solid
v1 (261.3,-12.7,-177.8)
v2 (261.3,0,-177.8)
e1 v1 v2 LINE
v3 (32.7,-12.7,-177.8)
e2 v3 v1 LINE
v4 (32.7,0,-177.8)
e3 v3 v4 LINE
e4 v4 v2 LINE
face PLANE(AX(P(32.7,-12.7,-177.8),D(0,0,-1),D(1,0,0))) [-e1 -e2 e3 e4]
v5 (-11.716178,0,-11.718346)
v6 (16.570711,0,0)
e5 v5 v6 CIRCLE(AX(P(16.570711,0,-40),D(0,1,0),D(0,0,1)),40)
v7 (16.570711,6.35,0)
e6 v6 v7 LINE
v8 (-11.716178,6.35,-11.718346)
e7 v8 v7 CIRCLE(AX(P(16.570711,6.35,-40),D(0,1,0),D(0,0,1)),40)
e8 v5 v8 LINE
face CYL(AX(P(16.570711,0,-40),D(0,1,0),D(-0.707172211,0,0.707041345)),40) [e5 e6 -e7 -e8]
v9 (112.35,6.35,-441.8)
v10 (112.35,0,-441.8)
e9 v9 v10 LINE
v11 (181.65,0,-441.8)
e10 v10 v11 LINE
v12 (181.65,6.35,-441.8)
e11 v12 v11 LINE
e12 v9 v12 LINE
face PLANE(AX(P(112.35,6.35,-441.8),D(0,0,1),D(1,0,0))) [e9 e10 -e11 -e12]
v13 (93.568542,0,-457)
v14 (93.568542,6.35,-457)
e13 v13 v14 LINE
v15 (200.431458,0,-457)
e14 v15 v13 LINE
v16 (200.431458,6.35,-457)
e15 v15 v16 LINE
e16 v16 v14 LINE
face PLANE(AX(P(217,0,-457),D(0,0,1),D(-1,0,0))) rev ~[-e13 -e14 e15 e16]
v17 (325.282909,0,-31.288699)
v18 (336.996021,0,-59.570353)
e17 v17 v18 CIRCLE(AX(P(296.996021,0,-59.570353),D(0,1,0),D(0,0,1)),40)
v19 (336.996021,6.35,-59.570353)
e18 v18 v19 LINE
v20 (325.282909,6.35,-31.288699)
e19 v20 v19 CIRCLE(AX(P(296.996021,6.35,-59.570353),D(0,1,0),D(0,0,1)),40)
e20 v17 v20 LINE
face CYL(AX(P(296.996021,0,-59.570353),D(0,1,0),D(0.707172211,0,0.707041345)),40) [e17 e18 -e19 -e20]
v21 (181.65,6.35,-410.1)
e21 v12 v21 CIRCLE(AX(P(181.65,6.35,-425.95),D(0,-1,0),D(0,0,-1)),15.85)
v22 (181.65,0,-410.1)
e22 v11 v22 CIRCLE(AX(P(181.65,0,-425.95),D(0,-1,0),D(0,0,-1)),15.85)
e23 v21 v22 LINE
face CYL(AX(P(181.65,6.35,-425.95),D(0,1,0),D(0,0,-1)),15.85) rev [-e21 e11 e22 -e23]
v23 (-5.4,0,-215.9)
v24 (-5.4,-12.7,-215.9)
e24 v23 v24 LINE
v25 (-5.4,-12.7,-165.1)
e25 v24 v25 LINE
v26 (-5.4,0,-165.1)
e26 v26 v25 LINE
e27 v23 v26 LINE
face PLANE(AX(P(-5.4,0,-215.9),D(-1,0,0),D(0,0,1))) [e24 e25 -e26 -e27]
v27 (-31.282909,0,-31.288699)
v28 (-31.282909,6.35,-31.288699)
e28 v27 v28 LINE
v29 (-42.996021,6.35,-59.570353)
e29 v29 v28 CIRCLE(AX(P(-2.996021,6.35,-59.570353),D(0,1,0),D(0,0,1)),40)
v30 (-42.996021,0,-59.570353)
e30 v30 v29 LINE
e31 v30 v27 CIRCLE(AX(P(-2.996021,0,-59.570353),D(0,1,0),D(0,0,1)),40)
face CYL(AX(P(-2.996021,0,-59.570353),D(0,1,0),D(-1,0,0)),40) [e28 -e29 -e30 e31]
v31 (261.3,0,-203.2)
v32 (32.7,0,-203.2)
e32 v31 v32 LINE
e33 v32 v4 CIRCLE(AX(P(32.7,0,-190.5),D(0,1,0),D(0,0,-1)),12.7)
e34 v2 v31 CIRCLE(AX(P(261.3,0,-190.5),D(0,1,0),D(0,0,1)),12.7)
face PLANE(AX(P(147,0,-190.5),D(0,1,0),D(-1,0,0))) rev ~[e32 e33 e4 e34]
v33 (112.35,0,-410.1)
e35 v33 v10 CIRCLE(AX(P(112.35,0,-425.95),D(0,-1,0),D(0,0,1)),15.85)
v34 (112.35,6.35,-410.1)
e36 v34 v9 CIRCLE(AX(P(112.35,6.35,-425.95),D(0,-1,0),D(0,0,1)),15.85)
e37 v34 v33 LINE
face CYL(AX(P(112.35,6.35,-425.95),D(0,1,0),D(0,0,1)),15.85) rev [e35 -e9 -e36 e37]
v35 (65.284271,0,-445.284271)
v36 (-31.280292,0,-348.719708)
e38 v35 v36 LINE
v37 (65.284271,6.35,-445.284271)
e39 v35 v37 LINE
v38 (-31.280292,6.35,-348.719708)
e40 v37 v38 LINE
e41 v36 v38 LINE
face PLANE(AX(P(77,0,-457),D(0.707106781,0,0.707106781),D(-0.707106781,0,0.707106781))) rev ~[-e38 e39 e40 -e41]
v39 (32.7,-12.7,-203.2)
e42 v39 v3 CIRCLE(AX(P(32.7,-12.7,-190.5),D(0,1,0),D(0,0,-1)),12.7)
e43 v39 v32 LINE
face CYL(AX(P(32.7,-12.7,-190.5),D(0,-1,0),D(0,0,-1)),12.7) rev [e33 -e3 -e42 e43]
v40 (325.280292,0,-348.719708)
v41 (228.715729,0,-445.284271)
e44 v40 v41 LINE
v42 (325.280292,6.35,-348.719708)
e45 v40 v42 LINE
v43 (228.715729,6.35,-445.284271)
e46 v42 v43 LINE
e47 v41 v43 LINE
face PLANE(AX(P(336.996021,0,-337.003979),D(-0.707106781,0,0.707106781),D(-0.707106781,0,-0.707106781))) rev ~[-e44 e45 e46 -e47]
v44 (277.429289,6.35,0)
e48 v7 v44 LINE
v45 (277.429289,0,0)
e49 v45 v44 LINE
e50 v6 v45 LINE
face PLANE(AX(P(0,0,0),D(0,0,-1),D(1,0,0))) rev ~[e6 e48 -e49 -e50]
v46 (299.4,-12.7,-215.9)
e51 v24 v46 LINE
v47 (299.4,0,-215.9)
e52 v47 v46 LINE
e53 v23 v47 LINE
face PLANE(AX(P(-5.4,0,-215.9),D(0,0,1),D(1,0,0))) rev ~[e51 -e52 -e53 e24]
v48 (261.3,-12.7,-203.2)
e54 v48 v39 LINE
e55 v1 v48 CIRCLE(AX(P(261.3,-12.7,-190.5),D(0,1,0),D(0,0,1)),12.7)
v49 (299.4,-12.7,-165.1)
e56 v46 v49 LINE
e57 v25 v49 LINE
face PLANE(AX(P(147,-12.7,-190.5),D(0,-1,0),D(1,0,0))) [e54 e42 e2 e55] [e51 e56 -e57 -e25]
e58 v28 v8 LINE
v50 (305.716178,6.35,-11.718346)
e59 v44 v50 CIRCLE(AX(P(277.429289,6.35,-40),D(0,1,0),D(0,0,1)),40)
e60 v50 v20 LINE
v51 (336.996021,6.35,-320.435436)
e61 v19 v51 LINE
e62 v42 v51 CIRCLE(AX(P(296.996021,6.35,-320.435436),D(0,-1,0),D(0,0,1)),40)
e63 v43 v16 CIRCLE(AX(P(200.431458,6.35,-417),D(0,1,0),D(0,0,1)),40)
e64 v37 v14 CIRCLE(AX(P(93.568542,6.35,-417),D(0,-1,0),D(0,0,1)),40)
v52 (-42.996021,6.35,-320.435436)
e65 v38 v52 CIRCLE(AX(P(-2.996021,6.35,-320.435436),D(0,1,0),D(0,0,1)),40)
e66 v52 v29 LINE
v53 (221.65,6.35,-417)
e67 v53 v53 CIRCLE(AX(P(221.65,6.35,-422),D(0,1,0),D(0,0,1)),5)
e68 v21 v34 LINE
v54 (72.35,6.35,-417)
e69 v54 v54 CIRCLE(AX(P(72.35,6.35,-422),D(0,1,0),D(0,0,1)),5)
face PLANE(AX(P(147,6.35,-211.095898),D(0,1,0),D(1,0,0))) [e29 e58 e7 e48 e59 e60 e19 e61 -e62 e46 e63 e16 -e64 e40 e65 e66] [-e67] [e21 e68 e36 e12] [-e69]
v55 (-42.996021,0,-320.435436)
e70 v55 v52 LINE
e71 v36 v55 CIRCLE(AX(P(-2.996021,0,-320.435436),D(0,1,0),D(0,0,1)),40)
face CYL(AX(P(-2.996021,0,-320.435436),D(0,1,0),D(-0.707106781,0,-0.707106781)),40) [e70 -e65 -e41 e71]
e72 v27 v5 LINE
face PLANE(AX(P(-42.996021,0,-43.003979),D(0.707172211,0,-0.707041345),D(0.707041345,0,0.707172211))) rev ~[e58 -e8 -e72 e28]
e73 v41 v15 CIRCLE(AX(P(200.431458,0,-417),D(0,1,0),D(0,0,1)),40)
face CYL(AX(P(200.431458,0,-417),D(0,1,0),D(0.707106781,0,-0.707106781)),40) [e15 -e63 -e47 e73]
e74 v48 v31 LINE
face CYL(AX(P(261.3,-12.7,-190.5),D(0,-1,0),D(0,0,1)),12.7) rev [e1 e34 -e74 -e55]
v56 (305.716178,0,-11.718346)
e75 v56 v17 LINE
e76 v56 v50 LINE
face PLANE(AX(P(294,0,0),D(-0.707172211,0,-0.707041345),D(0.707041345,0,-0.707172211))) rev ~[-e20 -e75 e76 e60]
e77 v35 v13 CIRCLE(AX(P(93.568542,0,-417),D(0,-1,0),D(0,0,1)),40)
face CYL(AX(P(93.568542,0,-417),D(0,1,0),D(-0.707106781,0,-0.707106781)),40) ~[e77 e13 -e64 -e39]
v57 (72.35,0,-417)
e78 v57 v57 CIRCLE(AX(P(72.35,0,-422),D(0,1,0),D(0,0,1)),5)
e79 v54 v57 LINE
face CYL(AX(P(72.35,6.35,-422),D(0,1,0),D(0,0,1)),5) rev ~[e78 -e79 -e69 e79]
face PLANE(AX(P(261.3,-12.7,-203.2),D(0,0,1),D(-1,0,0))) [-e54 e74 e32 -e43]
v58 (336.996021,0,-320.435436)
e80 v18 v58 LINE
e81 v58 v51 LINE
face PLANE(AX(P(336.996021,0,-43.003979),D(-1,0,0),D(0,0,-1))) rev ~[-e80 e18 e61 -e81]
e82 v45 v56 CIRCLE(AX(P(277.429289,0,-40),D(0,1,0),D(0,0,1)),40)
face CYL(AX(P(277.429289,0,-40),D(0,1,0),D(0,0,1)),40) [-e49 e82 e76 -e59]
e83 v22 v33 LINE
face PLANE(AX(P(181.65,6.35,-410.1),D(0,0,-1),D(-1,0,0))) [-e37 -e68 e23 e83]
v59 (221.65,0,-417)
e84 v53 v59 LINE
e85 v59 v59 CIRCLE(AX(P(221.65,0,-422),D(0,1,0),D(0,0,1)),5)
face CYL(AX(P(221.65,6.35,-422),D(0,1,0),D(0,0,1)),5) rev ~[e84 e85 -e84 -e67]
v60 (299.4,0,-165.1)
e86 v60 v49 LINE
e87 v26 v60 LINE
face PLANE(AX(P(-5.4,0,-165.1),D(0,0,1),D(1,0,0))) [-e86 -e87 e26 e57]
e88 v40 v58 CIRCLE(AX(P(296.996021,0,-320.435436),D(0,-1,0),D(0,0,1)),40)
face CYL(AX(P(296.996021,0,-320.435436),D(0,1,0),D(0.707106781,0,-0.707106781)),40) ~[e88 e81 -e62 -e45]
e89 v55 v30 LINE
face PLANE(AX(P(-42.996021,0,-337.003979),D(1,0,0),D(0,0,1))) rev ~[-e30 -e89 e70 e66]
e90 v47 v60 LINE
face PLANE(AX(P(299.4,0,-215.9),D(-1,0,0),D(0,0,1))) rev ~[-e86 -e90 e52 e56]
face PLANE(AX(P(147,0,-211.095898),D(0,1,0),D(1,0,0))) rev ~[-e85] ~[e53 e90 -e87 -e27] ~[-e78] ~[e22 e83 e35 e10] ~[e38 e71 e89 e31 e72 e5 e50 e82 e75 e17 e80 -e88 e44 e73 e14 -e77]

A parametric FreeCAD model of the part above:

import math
import FreeCAD as App
import Part
import Sketcher

V = App.Vector


def edges_at(feature, points):
    """Names of the edges that pass closest to the given points."""
    edges = feature.Shape.Edges
    near = lambda p: min(range(len(edges)), key=lambda i: edges[i].distToShape(Part.Vertex(*p))[0])
    return sorted({f"Edge{near(p) + 1}" for p in points})

doc = App.newDocument("Part")
params = doc.addObject("Spreadsheet::Sheet", "Params")
for row, (alias, value) in enumerate([
    ("sketch1_width", "294 mm"),
    ("sketch1_width2", "140 mm"),
    ("sketch1_length", "169.7 mm"),
    ("pad1_length", "6.35 mm"),
    ("sketch2_radius", "15.85 mm"),
    ("sketch2_width", "69.3 mm"),
    ("pocket1_length", "6.35 mm"),
    ("sketch3_diameter", "10 mm"),
    ("pocket2_length", "6.36 mm"),
    ("fillet_radius", "40 mm"),
    ("fillet2_radius", "40 mm"),
    ("sketch4_width", "304.8 mm"),
    ("sketch4_height", "50.8 mm"),
    ("pad2_length", "12.7 mm"),
    ("sketch5_radius", "12.7 mm"),
    ("sketch5_width", "228.6 mm"),
    ("pocket3_length", "12.7 mm"),
], start=1):
    params.set(f"A{row}", alias)
    params.set(f"B{row}", "=" + value)
    params.setAlias(f"B{row}", alias)

body = doc.addObject("PartDesign::Body", "Body")

sketch1 = body.newObject("Sketcher::SketchObject", "Sketch")
sketch1.AttachmentSupport = (doc.getObject("XZ_Plane"), [""])
sketch1.MapMode = "FlatFace"
sketch1.addGeometry(Part.LineSegment(V(0, 0, 0), V(294, 0, 0)), False)
sketch1.addGeometry(Part.LineSegment(V(294, 0, 0), V(337, -43, 0)), False)
sketch1.addGeometry(Part.LineSegment(V(337, -43, 0), V(337, -337, 0)), False)
sketch1.addGeometry(Part.LineSegment(V(337, -337, 0), V(217, -457, 0)), False)
sketch1.addGeometry(Part.LineSegment(V(217, -457, 0), V(77, -457, 0)), False)
sketch1.addGeometry(Part.LineSegment(V(77, -457, 0), V(-43, -337, 0)), False)
sketch1.addGeometry(Part.LineSegment(V(-43, -337, 0), V(-43, -43, 0)), False)
sketch1.addGeometry(Part.LineSegment(V(-43, -43, 0), V(0, 0, 0)), False)
sketch1.addConstraint(Sketcher.Constraint("Coincident", 0, 2, 1, 1))
sketch1.addConstraint(Sketcher.Constraint("Coincident", 1, 2, 2, 1))
sketch1.addConstraint(Sketcher.Constraint("Coincident", 2, 2, 3, 1))
sketch1.addConstraint(Sketcher.Constraint("Coincident", 3, 2, 4, 1))
sketch1.addConstraint(Sketcher.Constraint("Coincident", 4, 2, 5, 1))
sketch1.addConstraint(Sketcher.Constraint("Coincident", 5, 2, 6, 1))
sketch1.addConstraint(Sketcher.Constraint("Coincident", 6, 2, 7, 1))
sketch1.addConstraint(Sketcher.Constraint("Coincident", 7, 2, 0, 1))
sketch1.addConstraint(Sketcher.Constraint("Horizontal", 0))
sketch1.addConstraint(Sketcher.Constraint("Vertical", 2))
sketch1.addConstraint(Sketcher.Constraint("Horizontal", 4))
sketch1.addConstraint(Sketcher.Constraint("Vertical", 6))
sketch1.addConstraint(Sketcher.Constraint("Coincident", 7, 2, -1, 1))
sketch1.addConstraint(Sketcher.Constraint("Perpendicular", 3, 5))
sketch1.addConstraint(Sketcher.Constraint("Horizontal", 2, 2, 5, 2))
sketch1.addConstraint(Sketcher.Constraint("Horizontal", 1, 2, 6, 2))
sketch1.addConstraint(Sketcher.Constraint("Equal", 0, 2))
sketch1.addConstraint(Sketcher.Constraint("Equal", 3, 5))
sketch1.addConstraint(Sketcher.Constraint("Equal", 1, 7))
sketch1.addConstraint(Sketcher.Constraint("DistanceX", 0, 1, 0, 2, 294.0))
sketch1.addConstraint(Sketcher.Constraint("DistanceX", 4, 2, 4, 1, 140.0))
sketch1.addConstraint(Sketcher.Constraint("DistanceY", 3, 2, -1, 1, 457.0))
sketch1.addConstraint(Sketcher.Constraint("Distance", 3, 169.7))
sketch1.setExpression("Constraints[19]", "Params.sketch1_width")
sketch1.setExpression("Constraints[20]", "Params.sketch1_width2")
sketch1.setExpression("Constraints[22]", "Params.sketch1_length")
pad1 = body.newObject("PartDesign::Pad", "Pad")
pad1.Profile = sketch1
pad1.setExpression("Length", "Params.pad1_length")
pad1.Reversed = True

sketch2 = body.newObject("Sketcher::SketchObject", "Sketch001")
sketch2.AttachmentSupport = (doc.getObject("XZ_Plane"), [""])
sketch2.MapMode = "FlatFace"
sketch2.AttachmentOffset = App.Placement(V(0, 0, -6.35), App.Rotation())
sketch2.addGeometry(Part.LineSegment(V(182, -442, 0), V(112, -442, 0)), False)
sketch2.addGeometry(Part.ArcOfCircle(Part.Circle(V(112, -426, 0), V(0, 0, 1), 16), math.radians(90), math.radians(270)), False)
sketch2.addGeometry(Part.LineSegment(V(112, -410, 0), V(182, -410, 0)), False)
sketch2.addGeometry(Part.ArcOfCircle(Part.Circle(V(182, -426, 0), V(0, 0, 1), 16), math.radians(-90), math.radians(90)), False)
sketch2.addConstraint(Sketcher.Constraint("Tangent", 0, 2, 1, 2))
sketch2.addConstraint(Sketcher.Constraint("Tangent", 1, 1, 2, 1))
sketch2.addConstraint(Sketcher.Constraint("Tangent", 2, 2, 3, 2))
sketch2.addConstraint(Sketcher.Constraint("Tangent", 3, 1, 0, 1))
sketch2.addConstraint(Sketcher.Constraint("Horizontal", 0))
sketch2.addConstraint(Sketcher.Constraint("Horizontal", 2))
sketch2.addConstraint(Sketcher.Constraint("Radius", 1, 15.85))
sketch2.addConstraint(Sketcher.Constraint("DistanceX", 0, 2, 0, 1, 69.3))
sketch2.addConstraint(Sketcher.Constraint("DistanceY", 0, 2, -1, 1, 441.8))
sketch2.addConstraint(Sketcher.Constraint("DistanceX", -1, 1, 1, 3, 112.35))
sketch2.setExpression("Constraints[6]", "Params.sketch2_radius")
sketch2.setExpression("Constraints[7]", "Params.sketch2_width")
pocket1 = body.newObject("PartDesign::Pocket", "Pocket")
pocket1.Profile = sketch2
pocket1.setExpression("Length", "Params.pocket1_length")
pocket1.Reversed = True

sketch3 = body.newObject("Sketcher::SketchObject", "Sketch002")
sketch3.AttachmentSupport = (doc.getObject("XZ_Plane"), [""])
sketch3.MapMode = "FlatFace"
sketch3.AttachmentOffset = App.Placement(V(0, 0, -6.35), App.Rotation())
sketch3.addGeometry(Part.Circle(V(222, -422, 0), V(0, 0, 1), 5), False)
sketch3.addGeometry(Part.Circle(V(72, -422, 0), V(0, 0, 1), 5), False)
sketch3.addConstraint(Sketcher.Constraint("Equal", 0, 1))
sketch3.addConstraint(Sketcher.Constraint("Horizontal", 0, 3, 1, 3))
sketch3.addConstraint(Sketcher.Constraint("Diameter", 0, 10.0))
sketch3.addConstraint(Sketcher.Constraint("DistanceY", 0, 3, -1, 1, 422.0))
sketch3.addConstraint(Sketcher.Constraint("DistanceX", 1, 3, 0, 3, 149.3))
sketch3.addConstraint(Sketcher.Constraint("DistanceX", -1, 1, 0, 3, 221.65))
sketch3.setExpression("Constraints[2]", "Params.sketch3_diameter")
pocket2 = body.newObject("PartDesign::Pocket", "Pocket001")
pocket2.Profile = sketch3
pocket2.setExpression("Length", "Params.pocket2_length")
pocket2.Reversed = True
doc.recompute()

fillet = body.newObject("PartDesign::Fillet", "Fillet")
fillet.Base = (pocket2, edges_at(pocket2, [(77, 3.175, -457), (217, 3.175, -457)]))
fillet.setExpression("Radius", "Params.fillet_radius")
doc.recompute()

fillet2 = body.newObject("PartDesign::Fillet", "Fillet001")
fillet2.Base = (fillet, edges_at(fillet, [
    (-42.996, 3.175, -43.004),
    (-42.996, 3.175, -337.004),
    (336.996, 3.175, -337.004),
    (336.996, 3.175, -43.004),
    (294, 3.175, 0),
    (0, 3.175, 0),
]))
fillet2.setExpression("Radius", "Params.fillet2_radius")

sketch4 = body.newObject("Sketcher::SketchObject", "Sketch003")
sketch4.AttachmentSupport = (doc.getObject("XZ_Plane"), [""])
sketch4.MapMode = "FlatFace"
sketch4.addGeometry(Part.LineSegment(V(-5, -165, 0), V(-5, -216, 0)), False)
sketch4.addGeometry(Part.LineSegment(V(-5, -216, 0), V(299, -216, 0)), False)
sketch4.addGeometry(Part.LineSegment(V(299, -216, 0), V(299, -165, 0)), False)
sketch4.addGeometry(Part.LineSegment(V(299, -165, 0), V(-5, -165, 0)), False)
sketch4.addConstraint(Sketcher.Constraint("Coincident", 0, 2, 1, 1))
sketch4.addConstraint(Sketcher.Constraint("Coincident", 1, 2, 2, 1))
sketch4.addConstraint(Sketcher.Constraint("Coincident", 2, 2, 3, 1))
sketch4.addConstraint(Sketcher.Constraint("Coincident", 3, 2, 0, 1))
sketch4.addConstraint(Sketcher.Constraint("Vertical", 0))
sketch4.addConstraint(Sketcher.Constraint("Horizontal", 1))
sketch4.addConstraint(Sketcher.Constraint("Vertical", 2))
sketch4.addConstraint(Sketcher.Constraint("Horizontal", 3))
sketch4.addConstraint(Sketcher.Constraint("DistanceX", 1, 1, 1, 2, 304.8))
sketch4.addConstraint(Sketcher.Constraint("DistanceY", 0, 2, 0, 1, 50.8))
sketch4.addConstraint(Sketcher.Constraint("DistanceX", 0, 2, -1, 1, 5.4))
sketch4.addConstraint(Sketcher.Constraint("DistanceY", 0, 2, -1, 1, 215.9))
sketch4.setExpression("Constraints[8]", "Params.sketch4_width")
sketch4.setExpression("Constraints[9]", "Params.sketch4_height")
pad2 = body.newObject("PartDesign::Pad", "Pad001")
pad2.Profile = sketch4
pad2.setExpression("Length", "Params.pad2_length")

sketch5 = body.newObject("Sketcher::SketchObject", "Sketch004")
sketch5.AttachmentSupport = (doc.getObject("XZ_Plane"), [""])
sketch5.MapMode = "FlatFace"
sketch5.AttachmentOffset = App.Placement(V(0, 0, 12.7), App.Rotation())
sketch5.addGeometry(Part.LineSegment(V(33, -203, 0), V(261, -203, 0)), False)
sketch5.addGeometry(Part.ArcOfCircle(Part.Circle(V(261, -190, 0), V(0, 0, 1), 13), math.radians(-90), math.radians(90)), False)
sketch5.addGeometry(Part.LineSegment(V(261, -178, 0), V(33, -178, 0)), False)
sketch5.addGeometry(Part.ArcOfCircle(Part.Circle(V(33, -190, 0), V(0, 0, 1), 13), math.radians(90), math.radians(270)), False)
sketch5.addConstraint(Sketcher.Constraint("Tangent", 0, 2, 1, 1))
sketch5.addConstraint(Sketcher.Constraint("Tangent", 1, 2, 2, 1))
sketch5.addConstraint(Sketcher.Constraint("Tangent", 2, 2, 3, 1))
sketch5.addConstraint(Sketcher.Constraint("Tangent", 3, 2, 0, 1))
sketch5.addConstraint(Sketcher.Constraint("Horizontal", 0))
sketch5.addConstraint(Sketcher.Constraint("Horizontal", 2))
sketch5.addConstraint(Sketcher.Constraint("Radius", 1, 12.7))
sketch5.addConstraint(Sketcher.Constraint("DistanceX", 0, 1, 0, 2, 228.6))
sketch5.addConstraint(Sketcher.Constraint("DistanceX", -1, 1, 1, 3, 261.3))
sketch5.addConstraint(Sketcher.Constraint("DistanceY", 1, 3, -1, 1, 190.5))
sketch5.setExpression("Constraints[6]", "Params.sketch5_radius")
sketch5.setExpression("Constraints[7]", "Params.sketch5_width")
pocket3 = body.newObject("PartDesign::Pocket", "Pocket002")
pocket3.Profile = sketch5
pocket3.setExpression("Length", "Params.pocket3_length")

doc.recompute()
